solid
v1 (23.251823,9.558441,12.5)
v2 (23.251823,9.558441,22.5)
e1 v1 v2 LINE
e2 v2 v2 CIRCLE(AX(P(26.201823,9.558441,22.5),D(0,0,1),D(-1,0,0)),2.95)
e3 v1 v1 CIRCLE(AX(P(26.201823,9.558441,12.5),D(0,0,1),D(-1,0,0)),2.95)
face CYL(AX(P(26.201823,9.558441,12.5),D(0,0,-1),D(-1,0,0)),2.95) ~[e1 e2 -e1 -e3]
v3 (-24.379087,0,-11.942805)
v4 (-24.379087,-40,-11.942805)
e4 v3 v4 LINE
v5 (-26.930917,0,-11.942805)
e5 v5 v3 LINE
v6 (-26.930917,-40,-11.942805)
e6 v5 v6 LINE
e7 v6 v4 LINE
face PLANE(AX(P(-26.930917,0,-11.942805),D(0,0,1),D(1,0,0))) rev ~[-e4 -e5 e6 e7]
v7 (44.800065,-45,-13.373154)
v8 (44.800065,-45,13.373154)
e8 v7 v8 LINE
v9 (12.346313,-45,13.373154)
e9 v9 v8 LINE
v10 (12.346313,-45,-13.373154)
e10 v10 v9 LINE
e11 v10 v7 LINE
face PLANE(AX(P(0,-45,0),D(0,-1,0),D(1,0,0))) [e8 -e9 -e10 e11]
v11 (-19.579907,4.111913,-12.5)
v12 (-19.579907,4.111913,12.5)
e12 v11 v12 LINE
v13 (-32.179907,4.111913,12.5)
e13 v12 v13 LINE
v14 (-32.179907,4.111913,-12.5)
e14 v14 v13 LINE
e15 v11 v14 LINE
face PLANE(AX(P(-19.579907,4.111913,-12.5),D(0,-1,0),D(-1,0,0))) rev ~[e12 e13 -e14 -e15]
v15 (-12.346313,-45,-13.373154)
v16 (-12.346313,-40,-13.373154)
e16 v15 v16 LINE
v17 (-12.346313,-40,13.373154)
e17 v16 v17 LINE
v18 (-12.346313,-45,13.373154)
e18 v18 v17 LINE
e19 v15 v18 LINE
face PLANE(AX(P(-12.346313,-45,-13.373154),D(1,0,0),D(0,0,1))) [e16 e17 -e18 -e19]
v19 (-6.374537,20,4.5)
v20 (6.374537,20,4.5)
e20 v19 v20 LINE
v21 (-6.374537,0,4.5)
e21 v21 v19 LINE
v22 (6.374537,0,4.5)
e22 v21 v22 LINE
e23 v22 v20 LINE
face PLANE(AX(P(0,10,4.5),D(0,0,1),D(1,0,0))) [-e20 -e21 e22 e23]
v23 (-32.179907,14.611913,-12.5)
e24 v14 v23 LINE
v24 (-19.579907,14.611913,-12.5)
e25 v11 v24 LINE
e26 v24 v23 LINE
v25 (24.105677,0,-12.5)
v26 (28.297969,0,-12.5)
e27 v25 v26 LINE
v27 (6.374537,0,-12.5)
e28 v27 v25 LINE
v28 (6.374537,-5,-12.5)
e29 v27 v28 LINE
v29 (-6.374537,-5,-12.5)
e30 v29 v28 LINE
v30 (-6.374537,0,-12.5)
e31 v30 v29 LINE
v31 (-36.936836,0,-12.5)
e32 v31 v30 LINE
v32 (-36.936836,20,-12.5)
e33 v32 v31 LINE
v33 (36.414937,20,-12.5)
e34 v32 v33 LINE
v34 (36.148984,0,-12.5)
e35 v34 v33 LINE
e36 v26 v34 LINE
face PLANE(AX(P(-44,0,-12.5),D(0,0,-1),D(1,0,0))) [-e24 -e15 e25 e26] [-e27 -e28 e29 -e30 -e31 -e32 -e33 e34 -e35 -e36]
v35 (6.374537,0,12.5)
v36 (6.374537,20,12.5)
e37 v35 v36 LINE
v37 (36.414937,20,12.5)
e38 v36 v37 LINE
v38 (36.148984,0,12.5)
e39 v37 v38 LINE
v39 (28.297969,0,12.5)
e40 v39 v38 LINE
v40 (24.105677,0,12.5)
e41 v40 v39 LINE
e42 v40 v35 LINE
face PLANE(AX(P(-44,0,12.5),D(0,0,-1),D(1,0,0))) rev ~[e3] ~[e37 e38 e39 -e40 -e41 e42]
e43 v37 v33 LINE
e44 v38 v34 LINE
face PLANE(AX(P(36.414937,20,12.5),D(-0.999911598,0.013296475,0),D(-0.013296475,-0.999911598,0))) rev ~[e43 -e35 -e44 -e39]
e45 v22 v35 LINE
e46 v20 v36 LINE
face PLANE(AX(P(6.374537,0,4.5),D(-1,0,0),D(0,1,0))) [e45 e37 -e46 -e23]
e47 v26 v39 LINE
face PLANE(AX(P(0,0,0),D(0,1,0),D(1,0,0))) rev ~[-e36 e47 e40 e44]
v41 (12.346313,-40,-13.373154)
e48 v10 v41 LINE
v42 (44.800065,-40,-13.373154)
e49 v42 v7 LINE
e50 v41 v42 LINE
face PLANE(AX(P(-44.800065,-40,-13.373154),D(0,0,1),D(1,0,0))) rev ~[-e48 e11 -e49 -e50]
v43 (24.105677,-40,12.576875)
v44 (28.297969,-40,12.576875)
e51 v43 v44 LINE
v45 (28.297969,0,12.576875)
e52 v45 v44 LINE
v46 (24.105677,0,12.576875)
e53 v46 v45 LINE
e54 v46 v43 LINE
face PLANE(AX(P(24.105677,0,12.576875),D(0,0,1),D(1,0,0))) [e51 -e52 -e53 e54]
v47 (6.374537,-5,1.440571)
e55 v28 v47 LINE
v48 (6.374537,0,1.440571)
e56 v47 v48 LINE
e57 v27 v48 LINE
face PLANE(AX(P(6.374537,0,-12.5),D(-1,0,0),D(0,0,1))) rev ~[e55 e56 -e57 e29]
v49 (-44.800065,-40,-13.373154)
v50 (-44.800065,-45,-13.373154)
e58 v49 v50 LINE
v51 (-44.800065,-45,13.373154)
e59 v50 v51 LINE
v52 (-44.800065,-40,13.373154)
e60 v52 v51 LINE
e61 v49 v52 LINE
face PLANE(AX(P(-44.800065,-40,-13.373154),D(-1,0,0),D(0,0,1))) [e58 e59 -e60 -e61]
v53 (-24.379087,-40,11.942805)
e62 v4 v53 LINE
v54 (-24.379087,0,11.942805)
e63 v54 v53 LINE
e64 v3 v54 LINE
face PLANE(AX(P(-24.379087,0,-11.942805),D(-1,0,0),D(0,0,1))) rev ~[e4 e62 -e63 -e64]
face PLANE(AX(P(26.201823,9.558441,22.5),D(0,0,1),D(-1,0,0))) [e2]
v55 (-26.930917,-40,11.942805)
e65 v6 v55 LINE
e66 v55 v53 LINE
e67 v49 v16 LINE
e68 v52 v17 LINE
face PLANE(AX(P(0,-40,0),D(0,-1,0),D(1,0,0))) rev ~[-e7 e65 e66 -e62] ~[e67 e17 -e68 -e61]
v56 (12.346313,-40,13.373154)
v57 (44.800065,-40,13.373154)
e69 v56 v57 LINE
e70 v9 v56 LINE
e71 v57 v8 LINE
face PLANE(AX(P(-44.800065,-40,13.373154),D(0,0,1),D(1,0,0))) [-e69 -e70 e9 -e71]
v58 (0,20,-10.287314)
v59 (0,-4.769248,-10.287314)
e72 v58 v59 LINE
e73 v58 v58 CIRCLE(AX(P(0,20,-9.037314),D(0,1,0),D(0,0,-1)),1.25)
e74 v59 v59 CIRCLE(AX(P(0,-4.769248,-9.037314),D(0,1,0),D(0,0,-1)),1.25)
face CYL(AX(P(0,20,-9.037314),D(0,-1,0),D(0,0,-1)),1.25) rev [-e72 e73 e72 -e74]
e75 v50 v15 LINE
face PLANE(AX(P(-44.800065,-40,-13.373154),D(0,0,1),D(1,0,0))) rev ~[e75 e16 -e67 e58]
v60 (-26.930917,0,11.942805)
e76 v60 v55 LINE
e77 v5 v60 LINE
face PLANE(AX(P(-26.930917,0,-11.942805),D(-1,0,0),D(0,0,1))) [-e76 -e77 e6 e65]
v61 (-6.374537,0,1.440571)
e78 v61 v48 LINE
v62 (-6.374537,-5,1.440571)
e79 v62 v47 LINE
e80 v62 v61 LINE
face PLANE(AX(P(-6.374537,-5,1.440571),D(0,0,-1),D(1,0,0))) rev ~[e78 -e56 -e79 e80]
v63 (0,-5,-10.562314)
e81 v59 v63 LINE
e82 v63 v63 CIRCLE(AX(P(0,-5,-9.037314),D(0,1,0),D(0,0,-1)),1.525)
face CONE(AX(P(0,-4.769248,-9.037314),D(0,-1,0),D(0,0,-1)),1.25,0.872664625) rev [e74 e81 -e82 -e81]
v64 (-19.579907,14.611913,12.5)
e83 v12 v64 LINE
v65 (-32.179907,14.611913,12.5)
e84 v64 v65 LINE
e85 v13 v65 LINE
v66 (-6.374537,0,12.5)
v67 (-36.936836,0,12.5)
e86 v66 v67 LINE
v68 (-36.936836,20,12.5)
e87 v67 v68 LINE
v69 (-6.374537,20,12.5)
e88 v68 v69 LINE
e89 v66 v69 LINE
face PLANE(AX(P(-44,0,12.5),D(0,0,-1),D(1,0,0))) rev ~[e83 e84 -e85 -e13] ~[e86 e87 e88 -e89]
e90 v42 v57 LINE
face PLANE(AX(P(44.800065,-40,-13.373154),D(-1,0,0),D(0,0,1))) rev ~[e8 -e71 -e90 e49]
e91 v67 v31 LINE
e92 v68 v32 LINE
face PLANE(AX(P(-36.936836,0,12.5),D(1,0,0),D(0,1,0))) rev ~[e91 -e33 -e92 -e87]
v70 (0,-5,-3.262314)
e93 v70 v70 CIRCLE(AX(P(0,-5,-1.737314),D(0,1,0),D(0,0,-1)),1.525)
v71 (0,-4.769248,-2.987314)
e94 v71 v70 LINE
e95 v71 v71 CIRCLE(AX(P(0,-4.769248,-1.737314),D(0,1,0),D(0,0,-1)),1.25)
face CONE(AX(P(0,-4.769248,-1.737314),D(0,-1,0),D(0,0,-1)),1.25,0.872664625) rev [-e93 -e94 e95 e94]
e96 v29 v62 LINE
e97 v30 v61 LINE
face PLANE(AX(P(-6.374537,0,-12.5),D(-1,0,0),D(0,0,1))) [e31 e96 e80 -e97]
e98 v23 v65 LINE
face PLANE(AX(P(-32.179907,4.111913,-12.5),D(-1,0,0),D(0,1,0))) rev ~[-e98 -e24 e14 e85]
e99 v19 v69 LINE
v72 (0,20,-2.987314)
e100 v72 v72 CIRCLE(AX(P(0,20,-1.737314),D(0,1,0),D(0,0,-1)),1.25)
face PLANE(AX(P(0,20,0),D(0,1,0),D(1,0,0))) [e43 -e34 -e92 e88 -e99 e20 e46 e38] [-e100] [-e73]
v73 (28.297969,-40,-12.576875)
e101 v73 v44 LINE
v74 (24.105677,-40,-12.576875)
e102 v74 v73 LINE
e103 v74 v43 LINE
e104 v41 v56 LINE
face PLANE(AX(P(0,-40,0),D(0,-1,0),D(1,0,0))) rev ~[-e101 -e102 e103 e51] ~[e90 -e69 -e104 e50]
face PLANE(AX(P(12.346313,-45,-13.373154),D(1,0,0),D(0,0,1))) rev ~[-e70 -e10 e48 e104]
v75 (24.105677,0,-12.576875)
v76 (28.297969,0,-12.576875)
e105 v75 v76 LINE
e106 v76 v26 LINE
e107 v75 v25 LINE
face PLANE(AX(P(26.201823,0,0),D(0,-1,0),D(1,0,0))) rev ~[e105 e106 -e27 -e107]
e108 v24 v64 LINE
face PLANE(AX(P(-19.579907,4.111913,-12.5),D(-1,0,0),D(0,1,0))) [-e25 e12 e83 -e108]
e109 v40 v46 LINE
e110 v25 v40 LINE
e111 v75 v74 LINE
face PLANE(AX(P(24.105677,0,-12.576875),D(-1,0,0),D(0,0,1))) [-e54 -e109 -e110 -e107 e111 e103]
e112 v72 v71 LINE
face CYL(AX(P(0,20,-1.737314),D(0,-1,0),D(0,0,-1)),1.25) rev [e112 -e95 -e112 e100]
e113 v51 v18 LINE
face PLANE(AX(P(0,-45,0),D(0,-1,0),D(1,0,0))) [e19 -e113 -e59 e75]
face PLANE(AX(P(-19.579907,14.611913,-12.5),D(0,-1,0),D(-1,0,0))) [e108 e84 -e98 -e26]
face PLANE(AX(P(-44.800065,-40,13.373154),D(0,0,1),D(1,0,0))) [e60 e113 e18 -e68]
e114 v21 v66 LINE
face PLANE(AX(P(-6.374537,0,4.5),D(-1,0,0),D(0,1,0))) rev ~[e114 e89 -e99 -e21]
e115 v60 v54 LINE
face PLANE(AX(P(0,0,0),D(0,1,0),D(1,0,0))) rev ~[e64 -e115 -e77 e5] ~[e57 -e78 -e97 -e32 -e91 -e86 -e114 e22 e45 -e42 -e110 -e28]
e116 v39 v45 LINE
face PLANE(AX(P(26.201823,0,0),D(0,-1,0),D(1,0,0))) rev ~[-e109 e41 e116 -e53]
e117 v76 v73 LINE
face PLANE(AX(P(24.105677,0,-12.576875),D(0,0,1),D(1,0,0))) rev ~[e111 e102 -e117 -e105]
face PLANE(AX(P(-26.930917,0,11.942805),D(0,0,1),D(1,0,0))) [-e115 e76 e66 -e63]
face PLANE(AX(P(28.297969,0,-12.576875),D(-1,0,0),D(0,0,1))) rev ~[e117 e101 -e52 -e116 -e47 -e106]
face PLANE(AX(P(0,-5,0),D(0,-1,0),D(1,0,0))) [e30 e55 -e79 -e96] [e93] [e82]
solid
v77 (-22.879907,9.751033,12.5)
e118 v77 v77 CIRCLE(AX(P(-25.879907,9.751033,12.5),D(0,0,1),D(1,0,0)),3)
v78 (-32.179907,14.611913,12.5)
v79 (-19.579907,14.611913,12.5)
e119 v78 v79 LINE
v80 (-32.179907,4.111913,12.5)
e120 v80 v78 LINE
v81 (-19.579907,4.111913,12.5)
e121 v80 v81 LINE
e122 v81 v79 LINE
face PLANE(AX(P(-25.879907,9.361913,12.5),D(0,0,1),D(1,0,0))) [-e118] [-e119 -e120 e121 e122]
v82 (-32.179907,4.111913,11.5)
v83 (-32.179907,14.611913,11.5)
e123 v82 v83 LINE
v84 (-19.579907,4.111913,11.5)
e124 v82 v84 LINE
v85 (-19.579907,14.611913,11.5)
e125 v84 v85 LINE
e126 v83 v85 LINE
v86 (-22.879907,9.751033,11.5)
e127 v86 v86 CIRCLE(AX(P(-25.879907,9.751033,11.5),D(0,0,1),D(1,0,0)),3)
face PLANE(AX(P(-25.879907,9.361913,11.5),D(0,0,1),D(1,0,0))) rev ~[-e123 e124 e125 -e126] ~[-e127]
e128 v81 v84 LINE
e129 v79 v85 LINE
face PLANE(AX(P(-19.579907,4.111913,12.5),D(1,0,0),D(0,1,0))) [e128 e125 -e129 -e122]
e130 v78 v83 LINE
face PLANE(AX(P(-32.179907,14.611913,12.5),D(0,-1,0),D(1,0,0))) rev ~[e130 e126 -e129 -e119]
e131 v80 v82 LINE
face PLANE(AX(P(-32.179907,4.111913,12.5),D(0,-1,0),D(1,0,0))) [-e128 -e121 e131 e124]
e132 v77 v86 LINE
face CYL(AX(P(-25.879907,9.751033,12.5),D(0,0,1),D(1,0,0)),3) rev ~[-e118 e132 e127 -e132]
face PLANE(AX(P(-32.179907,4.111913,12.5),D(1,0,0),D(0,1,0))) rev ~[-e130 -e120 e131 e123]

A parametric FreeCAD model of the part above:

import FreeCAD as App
import Part
import Sketcher
from FreeCAD import Vector
Q = App.Units.Quantity

doc = App.newDocument("Part")
params = doc.addObject("Spreadsheet::Sheet", "Params")
for row, (alias, value) in enumerate([
    ("sketch1_width", "88 mm"),
    ("sketch1_height", "25 mm"),
    ("pad1_length", "20 mm"),
    ("pad2_length", "40 mm"),
    ("pad3_length", "40 mm"),
    ("pad4_length", "5 mm"),
    ("sketch5_width", "12.6 mm"),
    ("sketch5_height", "10.5 mm"),
    ("sketch6_diameter", "5.9 mm"),
    ("pad5_length", "10 mm"),
    ("sketch7_height", "25 mm"),
    ("pad6_length", "5 mm"),
    ("pocket2_length", "10 mm"),
    ("pocket3_length", "5 mm"),
    ("sketch10_width", "25 mm"),
    ("sketch10_height", "1.25 mm"),
    ("groove_angle", "360 deg"),
    ("sketch11_width", "25 mm"),
    ("sketch11_height", "1.25 mm"),
    ("groove2_angle", "360 deg"),
    ("sketch12_height", "20 mm"),
    ("sketch13_height", "20 mm"),
    ("sketch14_height", "20 mm"),
    ("pocket6_length", "69.567237 mm"),
    ("pocket6_length2", "8 mm"),
    ("sketch15_width", "12.6 mm"),
    ("sketch15_height", "10.5 mm"),
    ("pad7_length", "1 mm"),
    ("sketch16_diameter", "6 mm"),
    ("pocket7_length", "5 mm"),
], start=1):
    params.set(f"A{row}", alias)
    params.set(f"B{row}", "=" + value)
    params.setAlias(f"B{row}", alias)

body = doc.addObject("PartDesign::Body", "Body")

sketch1 = body.newObject("Sketcher::SketchObject", "Sketch")
sketch1.AttachmentSupport = (doc.getObject("XZ_Plane"), [""])
sketch1.MapMode = "FlatFace"
sketch1.addGeometry([
    Part.LineSegment(Vector(-44, -12, 0), Vector(-44, 12, 0)),
    Part.LineSegment(Vector(-44, 12, 0), Vector(44, 12, 0)),
    Part.LineSegment(Vector(44, 12, 0), Vector(44, -12, 0)),
    Part.LineSegment(Vector(44, -12, 0), Vector(-44, -12, 0)),
], False)
sketch1.addConstraint([
    Sketcher.Constraint("Coincident", 0, 2, 1, 1),
    Sketcher.Constraint("Coincident", 1, 2, 2, 1),
    Sketcher.Constraint("Coincident", 2, 2, 3, 1),
    Sketcher.Constraint("Coincident", 3, 2, 0, 1),
    Sketcher.Constraint("Vertical", 0),
    Sketcher.Constraint("Horizontal", 1),
    Sketcher.Constraint("Vertical", 2),
    Sketcher.Constraint("Horizontal", 3),
    Sketcher.Constraint("Symmetric", 0, 2, 2, 2, -1, 1),
    Sketcher.Constraint("DistanceX", 1, 1, 1, 2, Q("88 mm")),
    Sketcher.Constraint("DistanceY", 0, 1, 0, 2, Q("25 mm")),
])
sketch1.setExpression("Constraints[9]", "Params.sketch1_width")
sketch1.setExpression("Constraints[10]", "Params.sketch1_height")
pad1 = body.newObject("PartDesign::Pad", "Pad")
pad1.Profile = sketch1
pad1.setExpression("Length", "Params.pad1_length")
pad1.Reversed = True

sketch2 = body.newObject("Sketcher::SketchObject", "Sketch001")
sketch2.AttachmentSupport = (doc.getObject("XZ_Plane"), [""])
sketch2.MapMode = "FlatFace"
sketch2.addGeometry([
    Part.LineSegment(Vector(-26.9, 11.9, 0), Vector(-26.9, -11.9, 0)),
    Part.LineSegment(Vector(-26.9, -11.9, 0), Vector(-24.4, -11.9, 0)),
    Part.LineSegment(Vector(-24.4, -11.9, 0), Vector(-24.4, 11.9, 0)),
    Part.LineSegment(Vector(-24.4, 11.9, 0), Vector(-26.9, 11.9, 0)),
], False)
sketch2.addConstraint([
    Sketcher.Constraint("Coincident", 0, 2, 1, 1),
    Sketcher.Constraint("Coincident", 1, 2, 2, 1),
    Sketcher.Constraint("Coincident", 2, 2, 3, 1),
    Sketcher.Constraint("Coincident", 3, 2, 0, 1),
    Sketcher.Constraint("Vertical", 0),
    Sketcher.Constraint("Horizontal", 1),
    Sketcher.Constraint("Vertical", 2),
    Sketcher.Constraint("Horizontal", 3),
    Sketcher.Constraint("DistanceX", 1, 1, 1, 2, Q("2.55183 mm")),
    Sketcher.Constraint("DistanceY", 0, 2, 0, 1, Q("23.885611 mm")),
    Sketcher.Constraint("DistanceX", 0, 2, -1, 1, Q("26.930917 mm")),
    Sketcher.Constraint("DistanceY", 0, 2, -1, 1, Q("11.942805 mm")),
])
pad2 = body.newObject("PartDesign::Pad", "Pad001")
pad2.Profile = sketch2
pad2.setExpression("Length", "Params.pad2_length")

sketch3 = body.newObject("Sketcher::SketchObject", "Sketch002")
sketch3.AttachmentSupport = (doc.getObject("XZ_Plane"), [""])
sketch3.MapMode = "FlatFace"
sketch3.addGeometry([
    Part.LineSegment(Vector(24.1, 12.6, 0), Vector(24.1, -12.6, 0)),
    Part.LineSegment(Vector(24.1, -12.6, 0), Vector(28.3, -12.6, 0)),
    Part.LineSegment(Vector(28.3, -12.6, 0), Vector(28.3, 12.6, 0)),
    Part.LineSegment(Vector(28.3, 12.6, 0), Vector(24.1, 12.6, 0)),
], False)
sketch3.addConstraint([
    Sketcher.Constraint("Coincident", 0, 2, 1, 1),
    Sketcher.Constraint("Coincident", 1, 2, 2, 1),
    Sketcher.Constraint("Coincident", 2, 2, 3, 1),
    Sketcher.Constraint("Coincident", 3, 2, 0, 1),
    Sketcher.Constraint("Vertical", 0),
    Sketcher.Constraint("Horizontal", 1),
    Sketcher.Constraint("Vertical", 2),
    Sketcher.Constraint("Horizontal", 3),
    Sketcher.Constraint("DistanceX", 1, 1, 1, 2, Q("4.192292 mm")),
    Sketcher.Constraint("DistanceY", 0, 2, 0, 1, Q("25.15375 mm")),
    Sketcher.Constraint("DistanceX", -1, 1, 1, 2, Q("28.297969 mm")),
    Sketcher.Constraint("DistanceY", 0, 2, -1, 1, Q("12.576875 mm")),
])
pad3 = body.newObject("PartDesign::Pad", "Pad002")
pad3.Profile = sketch3
pad3.setExpression("Length", "Params.pad3_length")

sketch4 = body.newObject("Sketcher::SketchObject", "Sketch003")
sketch4.AttachmentSupport = (doc.getObject("XZ_Plane"), [""])
sketch4.MapMode = "FlatFace"
sketch4.AttachmentOffset = App.Placement(Vector(0, 0, 40), App.Rotation())
sketch4.addGeometry([
    Part.LineSegment(Vector(-45, 13, 0), Vector(-45, -13, 0)),
    Part.LineSegment(Vector(-45, -13, 0), Vector(45, -13, 0)),
    Part.LineSegment(Vector(45, -13, 0), Vector(45, 13, 0)),
    Part.LineSegment(Vector(45, 13, 0), Vector(-45, 13, 0)),
], False)
sketch4.addConstraint([
    Sketcher.Constraint("Coincident", 0, 2, 1, 1),
    Sketcher.Constraint("Coincident", 1, 2, 2, 1),
    Sketcher.Constraint("Coincident", 2, 2, 3, 1),
    Sketcher.Constraint("Coincident", 3, 2, 0, 1),
    Sketcher.Constraint("Vertical", 0),
    Sketcher.Constraint("Horizontal", 1),
    Sketcher.Constraint("Vertical", 2),
    Sketcher.Constraint("Horizontal", 3),
    Sketcher.Constraint("Symmetric", 0, 2, 2, 2, -1, 1),
    Sketcher.Constraint("DistanceX", 1, 1, 1, 2, Q("89.60013 mm")),
    Sketcher.Constraint("DistanceY", 0, 2, 0, 1, Q("26.746308 mm")),
])
pad4 = body.newObject("PartDesign::Pad", "Pad003")
pad4.Profile = sketch4
pad4.setExpression("Length", "Params.pad4_length")

sketch5 = body.newObject("Sketcher::SketchObject", "Sketch004")
sketch5.AttachmentSupport = (doc.getObject("XY_Plane"), [""])
sketch5.MapMode = "FlatFace"
sketch5.AttachmentOffset = App.Placement(Vector(0, 0, -12.5), App.Rotation())
sketch5.addGeometry([
    Part.LineSegment(Vector(-20, 15, 0), Vector(-20, 4, 0)),
    Part.LineSegment(Vector(-20, 4, 0), Vector(-32, 4, 0)),
    Part.LineSegment(Vector(-32, 4, 0), Vector(-32, 15, 0)),
    Part.LineSegment(Vector(-32, 15, 0), Vector(-20, 15, 0)),
], False)
sketch5.addConstraint([
    Sketcher.Constraint("Coincident", 0, 2, 1, 1),
    Sketcher.Constraint("Coincident", 1, 2, 2, 1),
    Sketcher.Constraint("Coincident", 2, 2, 3, 1),
    Sketcher.Constraint("Coincident", 3, 2, 0, 1),
    Sketcher.Constraint("Vertical", 0),
    Sketcher.Constraint("Horizontal", 1),
    Sketcher.Constraint("Vertical", 2),
    Sketcher.Constraint("Horizontal", 3),
    Sketcher.Constraint("DistanceX", 1, 2, 1, 1, Q("12.6 mm")),
    Sketcher.Constraint("DistanceY", 0, 2, 0, 1, Q("10.5 mm")),
    Sketcher.Constraint("DistanceX", 0, 2, -1, 1, Q("19.579907 mm")),
    Sketcher.Constraint("DistanceY", -1, 1, 0, 2, Q("4.111913 mm")),
])
sketch5.setExpression("Constraints[8]", "Params.sketch5_width")
sketch5.setExpression("Constraints[9]", "Params.sketch5_height")
pocket1 = body.newObject("PartDesign::Pocket", "Pocket")
pocket1.Profile = sketch5
pocket1.Type = "ThroughAll"
pocket1.Reversed = True

sketch6 = body.newObject("Sketcher::SketchObject", "Sketch005")
sketch6.AttachmentSupport = (doc.getObject("XY_Plane"), [""])
sketch6.MapMode = "FlatFace"
sketch6.AttachmentOffset = App.Placement(Vector(0, 0, 12.5), App.Rotation())
sketch6.addGeometry(Part.Circle(Vector(26.2, 9.6, 0), Vector(0, 0, 1), 3), False)
sketch6.addConstraint([
    Sketcher.Constraint("Diameter", 0, Q("5.9 mm")),
    Sketcher.Constraint("DistanceY", -1, 1, 0, 3, Q("9.558441 mm")),
    Sketcher.Constraint("DistanceX", -1, 1, 0, 3, Q("26.201823 mm")),
])
sketch6.setExpression("Constraints[0]", "Params.sketch6_diameter")
pad5 = body.newObject("PartDesign::Pad", "Pad004")
pad5.Profile = sketch6
pad5.setExpression("Length", "Params.pad5_length")

sketch7 = body.newObject("Sketcher::SketchObject", "Sketch006")
sketch7.AttachmentSupport = (doc.getObject("XZ_Plane"), [""])
sketch7.MapMode = "FlatFace"
sketch7.addGeometry([
    Part.LineSegment(Vector(-6, 12, 0), Vector(-6, -12, 0)),
    Part.LineSegment(Vector(-6, -12, 0), Vector(6, -12, 0)),
    Part.LineSegment(Vector(6, -12, 0), Vector(6, 12, 0)),
    Part.LineSegment(Vector(6, 12, 0), Vector(-6, 12, 0)),
], False)
sketch7.addConstraint([
    Sketcher.Constraint("Coincident", 0, 2, 1, 1),
    Sketcher.Constraint("Coincident", 1, 2, 2, 1),
    Sketcher.Constraint("Coincident", 2, 2, 3, 1),
    Sketcher.Constraint("Coincident", 3, 2, 0, 1),
    Sketcher.Constraint("Vertical", 0),
    Sketcher.Constraint("Horizontal", 1),
    Sketcher.Constraint("Vertical", 2),
    Sketcher.Constraint("Horizontal", 3),
    Sketcher.Constraint("Symmetric", 0, 2, 2, 2, -1, 1),
    Sketcher.Constraint("DistanceY", 0, 2, 0, 1, Q("25 mm")),
    Sketcher.Constraint("DistanceX", 1, 1, 1, 2, Q("12.749073 mm")),
])
sketch7.setExpression("Constraints[9]", "Params.sketch7_height")
pad6 = body.newObject("PartDesign::Pad", "Pad005")
pad6.Profile = sketch7
pad6.setExpression("Length", "Params.pad6_length")

sketch8 = body.newObject("Sketcher::SketchObject", "Sketch007")
sketch8.AttachmentSupport = (doc.getObject("XZ_Plane"), [""])
sketch8.MapMode = "FlatFace"
sketch8.AttachmentOffset = App.Placement(Vector(0, 0, 45), App.Rotation())
sketch8.addGeometry([
    Part.LineSegment(Vector(-12, 13, 0), Vector(-12, -13, 0)),
    Part.LineSegment(Vector(-12, -13, 0), Vector(12, -13, 0)),
    Part.LineSegment(Vector(12, -13, 0), Vector(12, 13, 0)),
    Part.LineSegment(Vector(12, 13, 0), Vector(-12, 13, 0)),
], False)
sketch8.addConstraint([
    Sketcher.Constraint("Coincident", 0, 2, 1, 1),
    Sketcher.Constraint("Coincident", 1, 2, 2, 1),
    Sketcher.Constraint("Coincident", 2, 2, 3, 1),
    Sketcher.Constraint("Coincident", 3, 2, 0, 1),
    Sketcher.Constraint("Vertical", 0),
    Sketcher.Constraint("Horizontal", 1),
    Sketcher.Constraint("Vertical", 2),
    Sketcher.Constraint("Horizontal", 3),
    Sketcher.Constraint("Symmetric", 0, 2, 2, 2, -1, 1),
    Sketcher.Constraint("DistanceX", 1, 1, 1, 2, Q("24.692626 mm")),
    Sketcher.Constraint("DistanceY", 0, 2, 0, 1, Q("26.746308 mm")),
])
pocket2 = body.newObject("PartDesign::Pocket", "Pocket001")
pocket2.Profile = sketch8
pocket2.setExpression("Length", "Params.pocket2_length")

sketch9 = body.newObject("Sketcher::SketchObject", "Sketch008")
sketch9.AttachmentSupport = (doc.getObject("XZ_Plane"), [""])
sketch9.MapMode = "FlatFace"
sketch9.AttachmentOffset = App.Placement(Vector(0, 0, 5), App.Rotation())
sketch9.addGeometry([
    Part.LineSegment(Vector(-6, 12, 0), Vector(-6, 1, 0)),
    Part.LineSegment(Vector(-6, 1, 0), Vector(6, 1, 0)),
    Part.LineSegment(Vector(6, 1, 0), Vector(6, 12, 0)),
    Part.LineSegment(Vector(6, 12, 0), Vector(-6, 12, 0)),
], False)
sketch9.addConstraint([
    Sketcher.Constraint("Coincident", 0, 2, 1, 1),
    Sketcher.Constraint("Coincident", 1, 2, 2, 1),
    Sketcher.Constraint("Coincident", 2, 2, 3, 1),
    Sketcher.Constraint("Coincident", 3, 2, 0, 1),
    Sketcher.Constraint("Vertical", 0),
    Sketcher.Constraint("Horizontal", 1),
    Sketcher.Constraint("Vertical", 2),
    Sketcher.Constraint("Horizontal", 3),
    Sketcher.Constraint("DistanceY", -1, 1, 2, 2, Q("12.5 mm")),
    Sketcher.Constraint("DistanceY", 0, 2, 0, 1, Q("11.059429 mm")),
    Sketcher.Constraint("DistanceX", 1, 1, 1, 2, Q("12.749073 mm")),
    Sketcher.Constraint("DistanceX", 0, 2, -1, 1, Q("6.374537 mm")),
])
pocket3 = body.newObject("PartDesign::Pocket", "Pocket002")
pocket3.Profile = sketch9
pocket3.setExpression("Length", "Params.pocket3_length")

sketch10 = body.newObject("Sketcher::SketchObject", "Sketch009")
sketch10.AttachmentSupport = (doc.getObject("YZ_Plane"), [""])
sketch10.MapMode = "FlatFace"
sketch10.addGeometry([
    Part.LineSegment(Vector(20, -1.74, 0), Vector(-5, -1.74, 0)),
    Part.LineSegment(Vector(-5, -1.74, 0), Vector(-5, -3.26, 0)),
    Part.LineSegment(Vector(-5, -3.26, 0), Vector(-4.77, -2.99, 0)),
    Part.LineSegment(Vector(-4.77, -2.99, 0), Vector(20, -2.99, 0)),
    Part.LineSegment(Vector(20, -2.99, 0), Vector(20, -1.74, 0)),
], False)
sketch10.addGeometry(Part.LineSegment(Vector(-5, -1.74, 0), Vector(20, -1.74, 0)), True)
sketch10.addConstraint([
    Sketcher.Constraint("Coincident", 0, 2, 1, 1),
    Sketcher.Constraint("Coincident", 1, 2, 2, 1),
    Sketcher.Constraint("Coincident", 2, 2, 3, 1),
    Sketcher.Constraint("Coincident", 3, 2, 4, 1),
    Sketcher.Constraint("Coincident", 4, 2, 0, 1),
    Sketcher.Constraint("Horizontal", 0),
    Sketcher.Constraint("Vertical", 1),
    Sketcher.Constraint("Horizontal", 3),
    Sketcher.Constraint("Vertical", 4),
    Sketcher.Constraint("Horizontal", 5),
    Sketcher.Constraint("Coincident", 5, 1, 0, 2),
    Sketcher.Constraint("Vertical", 3, 2, 5, 2),
    Sketcher.Constraint("DistanceX", 0, 2, 0, 1, Q("25 mm")),
    Sketcher.Constraint("Angle", 2, Q("50 deg")),
    Sketcher.Constraint("DistanceX", 0, 2, -1, 1, Q("5 mm")),
    Sketcher.Constraint("DistanceY", 4, 1, 4, 2, Q("1.25 mm")),
    Sketcher.Constraint("DistanceY", 1, 2, 1, 1, Q("1.525 mm")),
    Sketcher.Constraint("DistanceY", 0, 2, -1, 1, Q("1.737314 mm")),
])
sketch10.setExpression("Constraints[12]", "Params.sketch10_width")
sketch10.setExpression("Constraints[15]", "Params.sketch10_height")
groove = body.newObject("PartDesign::Groove", "Groove")
groove.Profile = sketch10
groove.ReferenceAxis = (sketch10, ["Axis0"])
groove.setExpression("Angle", "Params.groove_angle")

sketch11 = body.newObject("Sketcher::SketchObject", "Sketch010")
sketch11.AttachmentSupport = (doc.getObject("YZ_Plane"), [""])
sketch11.MapMode = "FlatFace"
sketch11.addGeometry([
    Part.LineSegment(Vector(20, -9.04, 0), Vector(-5, -9.04, 0)),
    Part.LineSegment(Vector(-5, -9.04, 0), Vector(-5, -10.56, 0)),
    Part.LineSegment(Vector(-5, -10.56, 0), Vector(-4.77, -10.29, 0)),
    Part.LineSegment(Vector(-4.77, -10.29, 0), Vector(20, -10.29, 0)),
    Part.LineSegment(Vector(20, -10.29, 0), Vector(20, -9.04, 0)),
], False)
sketch11.addGeometry(Part.LineSegment(Vector(-5, -9.04, 0), Vector(20, -9.04, 0)), True)
sketch11.addConstraint([
    Sketcher.Constraint("Coincident", 0, 2, 1, 1),
    Sketcher.Constraint("Coincident", 1, 2, 2, 1),
    Sketcher.Constraint("Coincident", 2, 2, 3, 1),
    Sketcher.Constraint("Coincident", 3, 2, 4, 1),
    Sketcher.Constraint("Coincident", 4, 2, 0, 1),
    Sketcher.Constraint("Horizontal", 0),
    Sketcher.Constraint("Vertical", 1),
    Sketcher.Constraint("Horizontal", 3),
    Sketcher.Constraint("Vertical", 4),
    Sketcher.Constraint("Horizontal", 5),
    Sketcher.Constraint("Coincident", 5, 1, 0, 2),
    Sketcher.Constraint("Vertical", 3, 2, 5, 2),
    Sketcher.Constraint("DistanceX", 0, 2, 0, 1, Q("25 mm")),
    Sketcher.Constraint("Angle", 2, Q("50 deg")),
    Sketcher.Constraint("DistanceX", 0, 2, -1, 1, Q("5 mm")),
    Sketcher.Constraint("DistanceY", 4, 1, 4, 2, Q("1.25 mm")),
    Sketcher.Constraint("DistanceY", 1, 2, 1, 1, Q("1.525 mm")),
    Sketcher.Constraint("DistanceY", 0, 2, -1, 1, Q("9.037314 mm")),
])
sketch11.setExpression("Constraints[12]", "Params.sketch11_width")
sketch11.setExpression("Constraints[15]", "Params.sketch11_height")
groove2 = body.newObject("PartDesign::Groove", "Groove001")
groove2.Profile = sketch11
groove2.ReferenceAxis = (sketch11, ["Axis0"])
groove2.setExpression("Angle", "Params.groove2_angle")

sketch12 = body.newObject("Sketcher::SketchObject", "Sketch011")
sketch12.AttachmentSupport = (doc.getObject("XY_Plane"), [""])
sketch12.MapMode = "FlatFace"
sketch12.AttachmentOffset = App.Placement(Vector(0, 0, 12.5), App.Rotation())
sketch12.addGeometry([
    Part.LineSegment(Vector(-44, 20, 0), Vector(-44, 0, 0)),
    Part.LineSegment(Vector(-44, 0, 0), Vector(-37, 0, 0)),
    Part.LineSegment(Vector(-37, 0, 0), Vector(-37, 20, 0)),
    Part.LineSegment(Vector(-37, 20, 0), Vector(-44, 20, 0)),
], False)
sketch12.addConstraint([
    Sketcher.Constraint("Coincident", 0, 2, 1, 1),
    Sketcher.Constraint("Coincident", 1, 2, 2, 1),
    Sketcher.Constraint("Coincident", 2, 2, 3, 1),
    Sketcher.Constraint("Coincident", 3, 2, 0, 1),
    Sketcher.Constraint("Vertical", 0),
    Sketcher.Constraint("Horizontal", 1),
    Sketcher.Constraint("Vertical", 2),
    Sketcher.Constraint("Horizontal", 3),
    Sketcher.Constraint("PointOnObject", 0, 2, -1),
    Sketcher.Constraint("DistanceY", 0, 2, 0, 1, Q("20 mm")),
    Sketcher.Constraint("DistanceX", 0, 2, -1, 1, Q("44 mm")),
    Sketcher.Constraint("DistanceX", 1, 1, 1, 2, Q("7.063164 mm")),
])
sketch12.setExpression("Constraints[9]", "Params.sketch12_height")
pocket4 = body.newObject("PartDesign::Pocket", "Pocket003")
pocket4.Profile = sketch12
pocket4.Type = "ThroughAll"

sketch13 = body.newObject("Sketcher::SketchObject", "Sketch012")
sketch13.AttachmentSupport = (doc.getObject("XY_Plane"), [""])
sketch13.MapMode = "FlatFace"
sketch13.AttachmentOffset = App.Placement(Vector(0, 0, 12.5), App.Rotation())
sketch13.addGeometry([
    Part.LineSegment(Vector(36.414937, 20, 0), Vector(36.148984, 0, 0)),
    Part.LineSegment(Vector(36.148984, 0, 0), Vector(44, 0, 0)),
    Part.LineSegment(Vector(44, 0, 0), Vector(44, 20, 0)),
    Part.LineSegment(Vector(44, 20, 0), Vector(36.414937, 20, 0)),
], False)
sketch13.addConstraint([
    Sketcher.Constraint("Coincident", 0, 2, 1, 1),
    Sketcher.Constraint("Coincident", 1, 2, 2, 1),
    Sketcher.Constraint("Coincident", 2, 2, 3, 1),
    Sketcher.Constraint("Coincident", 3, 2, 0, 1),
    Sketcher.Constraint("Horizontal", 1),
    Sketcher.Constraint("Vertical", 2),
    Sketcher.Constraint("Horizontal", 3),
    Sketcher.Constraint("PointOnObject", 0, 2, -1),
    Sketcher.Constraint("DistanceY", 2, 1, 2, 2, Q("20 mm")),
    Sketcher.Constraint("DistanceX", -1, 1, 1, 2, Q("44 mm")),
    Sketcher.Constraint("Distance", 0, Q("20.001768 mm")),
    Sketcher.Constraint("DistanceX", 1, 1, 1, 2, Q("7.851016 mm")),
])
sketch13.setExpression("Constraints[8]", "Params.sketch13_height")
pocket5 = body.newObject("PartDesign::Pocket", "Pocket004")
pocket5.Profile = sketch13
pocket5.Type = "ThroughAll"

sketch14 = body.newObject("Sketcher::SketchObject", "Sketch013")
sketch14.AttachmentSupport = (doc.getObject("XY_Plane"), [""])
sketch14.MapMode = "FlatFace"
sketch14.AttachmentOffset = App.Placement(Vector(0, 0, 12.5), App.Rotation())
sketch14.addGeometry([
    Part.LineSegment(Vector(-6, 20, 0), Vector(-6, 0, 0)),
    Part.LineSegment(Vector(-6, 0, 0), Vector(6, 0, 0)),
    Part.LineSegment(Vector(6, 0, 0), Vector(6, 20, 0)),
    Part.LineSegment(Vector(6, 20, 0), Vector(-6, 20, 0)),
], False)
sketch14.addConstraint([
    Sketcher.Constraint("Coincident", 0, 2, 1, 1),
    Sketcher.Constraint("Coincident", 1, 2, 2, 1),
    Sketcher.Constraint("Coincident", 2, 2, 3, 1),
    Sketcher.Constraint("Coincident", 3, 2, 0, 1),
    Sketcher.Constraint("Vertical", 0),
    Sketcher.Constraint("Horizontal", 1),
    Sketcher.Constraint("Vertical", 2),
    Sketcher.Constraint("Horizontal", 3),
    Sketcher.Constraint("Symmetric", 0, 2, 1, 2, -1, 1),
    Sketcher.Constraint("DistanceY", 0, 2, 0, 1, Q("20 mm")),
    Sketcher.Constraint("DistanceX", 1, 1, 1, 2, Q("12.749073 mm")),
])
sketch14.setExpression("Constraints[9]", "Params.sketch14_height")
pocket6 = body.newObject("PartDesign::Pocket", "Pocket005")
pocket6.Profile = sketch14
pocket6.Type = "TwoLengths"
pocket6.setExpression("Length", "Params.pocket6_length")
pocket6.setExpression("Length2", "Params.pocket6_length2")
pocket6.Reversed = True
body2 = doc.addObject("PartDesign::Body", "Body001")

sketch15 = body2.newObject("Sketcher::SketchObject", "Sketch014")
sketch15.AttachmentSupport = (doc.getObject("XY_Plane001"), [""])
sketch15.MapMode = "FlatFace"
sketch15.AttachmentOffset = App.Placement(Vector(0, 0, 12.5), App.Rotation())
sketch15.addGeometry([
    Part.LineSegment(Vector(-32, 15, 0), Vector(-32, 4, 0)),
    Part.LineSegment(Vector(-32, 4, 0), Vector(-20, 4, 0)),
    Part.LineSegment(Vector(-20, 4, 0), Vector(-20, 15, 0)),
    Part.LineSegment(Vector(-20, 15, 0), Vector(-32, 15, 0)),
], False)
sketch15.addConstraint([
    Sketcher.Constraint("Coincident", 0, 2, 1, 1),
    Sketcher.Constraint("Coincident", 1, 2, 2, 1),
    Sketcher.Constraint("Coincident", 2, 2, 3, 1),
    Sketcher.Constraint("Coincident", 3, 2, 0, 1),
    Sketcher.Constraint("Vertical", 0),
    Sketcher.Constraint("Horizontal", 1),
    Sketcher.Constraint("Vertical", 2),
    Sketcher.Constraint("Horizontal", 3),
    Sketcher.Constraint("DistanceX", 1, 1, 1, 2, Q("12.6 mm")),
    Sketcher.Constraint("DistanceY", 0, 2, 0, 1, Q("10.5 mm")),
    Sketcher.Constraint("DistanceX", 0, 2, -1, 1, Q("32.179907 mm")),
    Sketcher.Constraint("DistanceY", -1, 1, 0, 2, Q("4.111913 mm")),
])
sketch15.setExpression("Constraints[8]", "Params.sketch15_width")
sketch15.setExpression("Constraints[9]", "Params.sketch15_height")
pad7 = body2.newObject("PartDesign::Pad", "Pad006")
pad7.Profile = sketch15
pad7.setExpression("Length", "Params.pad7_length")
pad7.Reversed = True

sketch16 = body2.newObject("Sketcher::SketchObject", "Sketch015")
sketch16.AttachmentSupport = (doc.getObject("XY_Plane001"), [""])
sketch16.MapMode = "FlatFace"
sketch16.AttachmentOffset = App.Placement(Vector(0, 0, 12.5), App.Rotation())
sketch16.addGeometry(Part.Circle(Vector(-25.9, 9.8, 0), Vector(0, 0, 1), 3), False)
sketch16.addConstraint([
    Sketcher.Constraint("Diameter", 0, Q("6 mm")),
    Sketcher.Constraint("DistanceX", 0, 3, -1, 1, Q("25.879907 mm")),
    Sketcher.Constraint("DistanceY", -1, 1, 0, 3, Q("9.751033 mm")),
])
sketch16.setExpression("Constraints[0]", "Params.sketch16_diameter")
pocket7 = body2.newObject("PartDesign::Pocket", "Pocket006")
pocket7.Profile = sketch16
pocket7.setExpression("Length", "Params.pocket7_length")

doc.recompute()
